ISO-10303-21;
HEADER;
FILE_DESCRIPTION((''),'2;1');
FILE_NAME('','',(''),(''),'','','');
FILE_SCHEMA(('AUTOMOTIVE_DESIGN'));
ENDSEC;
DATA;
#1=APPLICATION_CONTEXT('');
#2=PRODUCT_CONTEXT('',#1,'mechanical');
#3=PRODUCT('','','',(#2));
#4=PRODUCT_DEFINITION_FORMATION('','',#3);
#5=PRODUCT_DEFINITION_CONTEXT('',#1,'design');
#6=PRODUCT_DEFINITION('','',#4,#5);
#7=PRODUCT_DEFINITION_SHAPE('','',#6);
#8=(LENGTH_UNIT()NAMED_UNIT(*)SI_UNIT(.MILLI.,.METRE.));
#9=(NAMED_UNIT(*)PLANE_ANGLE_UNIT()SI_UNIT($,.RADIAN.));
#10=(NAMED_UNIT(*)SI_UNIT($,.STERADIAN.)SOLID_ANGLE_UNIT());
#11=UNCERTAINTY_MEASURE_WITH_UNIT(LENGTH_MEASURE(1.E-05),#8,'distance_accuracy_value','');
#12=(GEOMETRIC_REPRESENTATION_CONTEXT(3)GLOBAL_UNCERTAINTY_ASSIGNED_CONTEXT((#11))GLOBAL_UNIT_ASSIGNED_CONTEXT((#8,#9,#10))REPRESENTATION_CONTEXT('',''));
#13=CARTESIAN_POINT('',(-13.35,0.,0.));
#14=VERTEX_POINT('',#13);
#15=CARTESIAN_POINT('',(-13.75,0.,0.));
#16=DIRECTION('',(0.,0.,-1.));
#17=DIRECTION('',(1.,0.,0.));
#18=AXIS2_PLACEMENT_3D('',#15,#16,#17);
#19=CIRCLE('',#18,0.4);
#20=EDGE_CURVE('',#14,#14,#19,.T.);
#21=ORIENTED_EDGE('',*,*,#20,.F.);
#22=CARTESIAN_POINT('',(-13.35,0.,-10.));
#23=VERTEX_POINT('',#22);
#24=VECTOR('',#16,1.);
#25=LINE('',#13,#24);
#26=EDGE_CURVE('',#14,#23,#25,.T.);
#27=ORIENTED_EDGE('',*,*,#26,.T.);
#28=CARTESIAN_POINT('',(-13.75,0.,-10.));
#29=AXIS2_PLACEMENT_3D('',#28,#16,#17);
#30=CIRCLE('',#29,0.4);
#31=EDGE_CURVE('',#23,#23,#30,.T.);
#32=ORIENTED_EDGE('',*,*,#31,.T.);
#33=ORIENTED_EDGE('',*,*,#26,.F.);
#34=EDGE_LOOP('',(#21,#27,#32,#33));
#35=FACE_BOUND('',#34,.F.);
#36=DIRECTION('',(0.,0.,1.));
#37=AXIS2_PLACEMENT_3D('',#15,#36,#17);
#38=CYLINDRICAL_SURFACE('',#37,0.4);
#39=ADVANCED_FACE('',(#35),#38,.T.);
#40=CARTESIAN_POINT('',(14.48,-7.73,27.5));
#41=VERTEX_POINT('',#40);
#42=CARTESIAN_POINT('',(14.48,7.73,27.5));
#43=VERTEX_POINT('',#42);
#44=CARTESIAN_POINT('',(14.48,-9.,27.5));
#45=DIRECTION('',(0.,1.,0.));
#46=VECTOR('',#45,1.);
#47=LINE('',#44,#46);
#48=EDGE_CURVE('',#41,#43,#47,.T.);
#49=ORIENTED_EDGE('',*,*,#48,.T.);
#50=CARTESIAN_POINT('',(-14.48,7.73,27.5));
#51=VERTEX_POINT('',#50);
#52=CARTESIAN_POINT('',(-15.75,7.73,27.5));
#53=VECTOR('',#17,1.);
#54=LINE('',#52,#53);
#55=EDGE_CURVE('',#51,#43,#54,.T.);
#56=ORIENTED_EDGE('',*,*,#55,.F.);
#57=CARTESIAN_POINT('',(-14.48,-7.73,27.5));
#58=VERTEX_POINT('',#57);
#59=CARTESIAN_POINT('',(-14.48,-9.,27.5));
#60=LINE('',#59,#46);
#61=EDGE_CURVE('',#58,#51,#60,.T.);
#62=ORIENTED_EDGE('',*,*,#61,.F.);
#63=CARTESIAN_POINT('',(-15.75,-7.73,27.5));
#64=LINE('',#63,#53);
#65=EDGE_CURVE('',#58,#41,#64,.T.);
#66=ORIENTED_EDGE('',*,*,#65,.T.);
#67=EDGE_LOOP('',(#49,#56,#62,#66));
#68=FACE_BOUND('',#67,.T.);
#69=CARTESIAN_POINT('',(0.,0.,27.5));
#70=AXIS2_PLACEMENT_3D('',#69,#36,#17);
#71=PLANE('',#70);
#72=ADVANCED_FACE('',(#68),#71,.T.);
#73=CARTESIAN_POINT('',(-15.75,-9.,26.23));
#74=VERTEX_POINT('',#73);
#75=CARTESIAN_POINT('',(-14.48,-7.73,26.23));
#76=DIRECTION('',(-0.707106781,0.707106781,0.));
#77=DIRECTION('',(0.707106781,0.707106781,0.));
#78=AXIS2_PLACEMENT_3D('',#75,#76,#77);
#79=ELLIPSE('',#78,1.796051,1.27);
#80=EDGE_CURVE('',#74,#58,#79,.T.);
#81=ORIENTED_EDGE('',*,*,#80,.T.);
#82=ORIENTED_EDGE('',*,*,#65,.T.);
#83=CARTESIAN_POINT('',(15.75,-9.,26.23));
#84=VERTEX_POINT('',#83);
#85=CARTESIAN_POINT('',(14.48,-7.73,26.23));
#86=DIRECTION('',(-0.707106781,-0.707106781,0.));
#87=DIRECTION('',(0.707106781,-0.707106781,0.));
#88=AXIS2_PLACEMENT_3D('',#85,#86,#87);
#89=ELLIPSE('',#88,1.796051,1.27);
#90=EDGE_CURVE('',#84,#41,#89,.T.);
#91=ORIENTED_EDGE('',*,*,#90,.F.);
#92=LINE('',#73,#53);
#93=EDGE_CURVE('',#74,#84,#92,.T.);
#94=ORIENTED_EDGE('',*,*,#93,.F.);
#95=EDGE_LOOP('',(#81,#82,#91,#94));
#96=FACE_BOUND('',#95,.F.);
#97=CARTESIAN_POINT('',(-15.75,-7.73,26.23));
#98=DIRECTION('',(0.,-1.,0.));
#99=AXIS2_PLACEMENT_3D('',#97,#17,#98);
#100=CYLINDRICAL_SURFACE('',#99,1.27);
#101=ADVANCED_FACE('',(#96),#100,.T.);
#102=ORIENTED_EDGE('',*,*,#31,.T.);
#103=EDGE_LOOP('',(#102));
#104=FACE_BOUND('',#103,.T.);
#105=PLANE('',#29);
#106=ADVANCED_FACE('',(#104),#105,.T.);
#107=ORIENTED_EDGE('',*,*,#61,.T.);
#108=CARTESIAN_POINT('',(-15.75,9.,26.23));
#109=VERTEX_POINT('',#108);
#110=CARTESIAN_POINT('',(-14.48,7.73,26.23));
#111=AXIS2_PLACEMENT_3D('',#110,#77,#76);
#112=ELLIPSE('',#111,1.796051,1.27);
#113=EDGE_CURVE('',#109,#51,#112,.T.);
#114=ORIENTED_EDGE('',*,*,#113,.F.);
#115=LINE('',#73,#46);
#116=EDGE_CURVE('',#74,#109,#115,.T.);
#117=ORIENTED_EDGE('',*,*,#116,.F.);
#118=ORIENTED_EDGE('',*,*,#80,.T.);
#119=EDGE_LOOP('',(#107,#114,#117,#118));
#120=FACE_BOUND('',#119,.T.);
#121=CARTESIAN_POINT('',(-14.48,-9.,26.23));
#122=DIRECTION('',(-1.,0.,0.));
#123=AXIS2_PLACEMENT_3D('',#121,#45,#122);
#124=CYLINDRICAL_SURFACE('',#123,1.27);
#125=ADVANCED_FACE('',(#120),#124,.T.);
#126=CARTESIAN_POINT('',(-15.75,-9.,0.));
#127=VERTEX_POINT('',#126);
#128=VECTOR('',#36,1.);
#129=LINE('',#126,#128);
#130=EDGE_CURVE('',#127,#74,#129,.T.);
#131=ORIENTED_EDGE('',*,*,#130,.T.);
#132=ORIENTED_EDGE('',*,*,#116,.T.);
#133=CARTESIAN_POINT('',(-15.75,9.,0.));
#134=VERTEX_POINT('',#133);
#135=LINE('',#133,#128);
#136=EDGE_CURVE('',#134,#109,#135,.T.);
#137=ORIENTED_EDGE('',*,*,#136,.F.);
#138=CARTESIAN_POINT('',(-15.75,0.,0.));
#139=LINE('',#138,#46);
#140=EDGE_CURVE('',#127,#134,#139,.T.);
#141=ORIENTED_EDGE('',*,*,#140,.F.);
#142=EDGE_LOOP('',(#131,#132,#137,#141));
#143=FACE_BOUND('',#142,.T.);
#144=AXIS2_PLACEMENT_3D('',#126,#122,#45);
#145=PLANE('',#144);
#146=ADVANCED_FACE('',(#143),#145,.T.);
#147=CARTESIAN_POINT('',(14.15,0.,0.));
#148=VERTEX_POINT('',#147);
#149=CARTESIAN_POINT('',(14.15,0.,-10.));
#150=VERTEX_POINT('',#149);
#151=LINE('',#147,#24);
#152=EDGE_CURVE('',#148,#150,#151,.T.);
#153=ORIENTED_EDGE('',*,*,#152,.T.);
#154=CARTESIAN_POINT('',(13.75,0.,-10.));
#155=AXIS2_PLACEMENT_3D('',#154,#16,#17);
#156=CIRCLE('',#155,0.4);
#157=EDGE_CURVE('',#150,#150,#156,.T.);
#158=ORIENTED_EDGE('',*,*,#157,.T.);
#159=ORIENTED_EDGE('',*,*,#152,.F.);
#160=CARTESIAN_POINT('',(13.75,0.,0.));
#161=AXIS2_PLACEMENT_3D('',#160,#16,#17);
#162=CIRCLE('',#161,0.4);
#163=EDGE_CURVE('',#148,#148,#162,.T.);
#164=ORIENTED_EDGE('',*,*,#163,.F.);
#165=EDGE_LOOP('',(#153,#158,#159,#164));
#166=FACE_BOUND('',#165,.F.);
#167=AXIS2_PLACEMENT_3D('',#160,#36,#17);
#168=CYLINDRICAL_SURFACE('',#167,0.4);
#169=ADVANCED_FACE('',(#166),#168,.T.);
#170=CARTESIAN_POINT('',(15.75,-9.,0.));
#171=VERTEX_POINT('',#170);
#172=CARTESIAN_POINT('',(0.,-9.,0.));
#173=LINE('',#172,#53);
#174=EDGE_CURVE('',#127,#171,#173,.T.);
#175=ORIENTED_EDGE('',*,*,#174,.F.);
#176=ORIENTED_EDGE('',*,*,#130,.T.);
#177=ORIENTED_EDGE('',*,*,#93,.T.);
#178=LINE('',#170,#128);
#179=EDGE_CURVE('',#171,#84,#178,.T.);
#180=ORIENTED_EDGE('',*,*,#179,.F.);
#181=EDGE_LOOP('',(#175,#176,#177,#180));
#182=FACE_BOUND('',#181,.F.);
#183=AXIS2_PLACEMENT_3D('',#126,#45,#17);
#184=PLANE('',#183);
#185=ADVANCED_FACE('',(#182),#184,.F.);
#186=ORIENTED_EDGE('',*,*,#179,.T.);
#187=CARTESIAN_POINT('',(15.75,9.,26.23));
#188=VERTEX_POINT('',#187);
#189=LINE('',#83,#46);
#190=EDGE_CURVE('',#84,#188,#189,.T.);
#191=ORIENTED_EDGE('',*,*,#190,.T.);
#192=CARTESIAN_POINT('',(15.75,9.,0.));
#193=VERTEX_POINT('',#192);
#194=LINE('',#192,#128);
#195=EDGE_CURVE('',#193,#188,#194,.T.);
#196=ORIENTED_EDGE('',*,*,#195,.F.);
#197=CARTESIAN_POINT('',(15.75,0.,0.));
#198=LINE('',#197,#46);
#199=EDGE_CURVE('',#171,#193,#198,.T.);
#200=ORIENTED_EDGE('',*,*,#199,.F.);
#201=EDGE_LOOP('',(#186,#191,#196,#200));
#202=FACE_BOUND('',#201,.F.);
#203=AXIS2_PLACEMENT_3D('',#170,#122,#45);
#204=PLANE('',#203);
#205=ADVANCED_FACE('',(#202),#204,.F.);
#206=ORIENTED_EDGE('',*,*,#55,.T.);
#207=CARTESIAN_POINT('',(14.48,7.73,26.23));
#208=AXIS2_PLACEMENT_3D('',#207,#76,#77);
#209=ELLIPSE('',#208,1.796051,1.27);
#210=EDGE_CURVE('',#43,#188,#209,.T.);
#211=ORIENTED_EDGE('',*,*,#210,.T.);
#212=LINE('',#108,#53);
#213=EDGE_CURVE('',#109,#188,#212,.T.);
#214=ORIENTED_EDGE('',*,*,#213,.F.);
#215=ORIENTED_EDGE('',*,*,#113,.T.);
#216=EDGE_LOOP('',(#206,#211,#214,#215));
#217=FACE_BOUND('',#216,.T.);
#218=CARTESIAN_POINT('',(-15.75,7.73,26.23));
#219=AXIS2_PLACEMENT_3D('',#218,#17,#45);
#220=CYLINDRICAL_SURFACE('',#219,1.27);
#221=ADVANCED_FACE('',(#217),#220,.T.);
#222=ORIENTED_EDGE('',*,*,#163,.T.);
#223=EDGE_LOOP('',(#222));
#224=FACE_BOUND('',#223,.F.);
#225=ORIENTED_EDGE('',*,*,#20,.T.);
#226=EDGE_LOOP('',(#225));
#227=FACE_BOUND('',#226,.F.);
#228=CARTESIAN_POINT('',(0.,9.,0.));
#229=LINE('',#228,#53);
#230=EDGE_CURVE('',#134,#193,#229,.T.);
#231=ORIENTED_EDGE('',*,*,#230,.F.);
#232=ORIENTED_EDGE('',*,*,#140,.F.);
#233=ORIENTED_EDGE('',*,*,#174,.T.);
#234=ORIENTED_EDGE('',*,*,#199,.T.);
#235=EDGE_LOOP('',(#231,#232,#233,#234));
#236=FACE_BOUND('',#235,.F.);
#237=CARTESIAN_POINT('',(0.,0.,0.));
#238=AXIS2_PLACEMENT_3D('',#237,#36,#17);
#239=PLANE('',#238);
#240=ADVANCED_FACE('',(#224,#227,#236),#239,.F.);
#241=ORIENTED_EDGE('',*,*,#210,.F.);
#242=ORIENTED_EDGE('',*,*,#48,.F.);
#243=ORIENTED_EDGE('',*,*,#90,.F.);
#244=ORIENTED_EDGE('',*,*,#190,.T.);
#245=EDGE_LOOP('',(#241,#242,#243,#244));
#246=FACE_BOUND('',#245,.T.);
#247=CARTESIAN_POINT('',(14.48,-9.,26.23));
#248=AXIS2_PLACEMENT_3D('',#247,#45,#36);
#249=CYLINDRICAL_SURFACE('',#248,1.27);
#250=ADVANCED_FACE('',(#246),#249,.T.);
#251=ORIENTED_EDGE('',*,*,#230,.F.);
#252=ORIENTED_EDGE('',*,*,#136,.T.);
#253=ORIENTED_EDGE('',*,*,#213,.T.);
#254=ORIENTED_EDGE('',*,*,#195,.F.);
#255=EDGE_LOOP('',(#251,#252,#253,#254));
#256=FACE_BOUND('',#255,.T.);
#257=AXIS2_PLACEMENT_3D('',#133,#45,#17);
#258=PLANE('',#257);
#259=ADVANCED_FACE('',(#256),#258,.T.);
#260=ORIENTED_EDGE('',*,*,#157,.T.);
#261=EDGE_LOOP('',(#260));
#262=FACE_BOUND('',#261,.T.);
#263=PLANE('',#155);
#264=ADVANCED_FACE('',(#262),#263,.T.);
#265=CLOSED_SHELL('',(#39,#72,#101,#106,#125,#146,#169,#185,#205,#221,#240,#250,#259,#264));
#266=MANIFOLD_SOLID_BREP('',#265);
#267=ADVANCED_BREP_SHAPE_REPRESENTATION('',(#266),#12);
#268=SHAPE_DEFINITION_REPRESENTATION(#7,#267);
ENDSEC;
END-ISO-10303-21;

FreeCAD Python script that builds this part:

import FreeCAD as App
import Part
import Sketcher

V = App.Vector


def edges_at(feature, points):
    """Names of the edges that pass closest to the given points."""
    edges = feature.Shape.Edges
    near = lambda p: min(range(len(edges)), key=lambda i: edges[i].distToShape(Part.Vertex(*p))[0])
    return sorted({f"Edge{near(p) + 1}" for p in points})


def add_polygon(sketch, points):
    """Adds a closed chain of lines whose ends are joined by coincident constraints."""
    first, n = sketch.GeometryCount, len(points)
    for a, b in zip(points, points[1:] + points[:1]):
        sketch.addGeometry(Part.LineSegment(App.Vector(*a, 0), App.Vector(*b, 0)), False)
    for i in range(n):
        sketch.addConstraint(Sketcher.Constraint("Coincident", first + i, 2, first + (i + 1) % n, 1))

doc = App.newDocument("Part")
params = doc.addObject("Spreadsheet::Sheet", "Params")
for row, (alias, value) in enumerate([
    ("sketch1_height", "18 mm"),
    ("sketch1_width", "31.5 mm"),
    ("pad1_length", "27.5 mm"),
    ("sketch2_diameter", "0.8 mm"),
    ("pad2_length", "10 mm"),
    ("fillet_radius", "1.27 mm"),
], start=1):
    params.set(f"A{row}", alias)
    params.set(f"B{row}", "=" + value)
    params.setAlias(f"B{row}", alias)

body = doc.addObject("PartDesign::Body", "Body")

# Sketch on XY plane
sketch1 = doc.addObject("Sketcher::SketchObject", "Sketch")
body.addObject(sketch1)
sketch1.AttachmentSupport = (doc.XY_Plane, [""])
sketch1.MapMode = "FlatFace"
add_polygon(sketch1, [(-16, 9), (-16, -9), (16, -9), (16, 9)])  # lines 0-3
sketch1.addConstraint([
    Sketcher.Constraint("Vertical", 0),
    Sketcher.Constraint("Horizontal", 1),
    Sketcher.Constraint("Vertical", 2),
    Sketcher.Constraint("Horizontal", 3),
    Sketcher.Constraint("Symmetric", 0, 2, 2, 2, -1, 1),
    Sketcher.Constraint("DistanceY", 0, 2, 0, 1, 18.0),
    Sketcher.Constraint("DistanceX", 1, 1, 1, 2, 31.5),
])
sketch1.setExpression("Constraints[9]", "Params.sketch1_height")
sketch1.setExpression("Constraints[10]", "Params.sketch1_width")
pad1 = doc.addObject("PartDesign::Pad", "Pad")
body.addObject(pad1)
pad1.Profile = sketch1
pad1.setExpression("Length", "Params.pad1_length")

# Sketch on XY plane
sketch2 = doc.addObject("Sketcher::SketchObject", "Sketch001")
body.addObject(sketch2)
sketch2.AttachmentSupport = (doc.XY_Plane, [""])
sketch2.MapMode = "FlatFace"
sketch2.addGeometry([
    Part.Circle(V(13.75, 0, 0), V(0, 0, 1), 0.4),
    Part.Circle(V(-13.75, 0, 0), V(0, 0, 1), 0.4),
], False)
sketch2.addConstraint([
    Sketcher.Constraint("Equal", 0, 1),
    Sketcher.Constraint("Symmetric", 0, 3, 1, 3, -1, 1),
    Sketcher.Constraint("PointOnObject", 0, 3, -1),
    Sketcher.Constraint("Diameter", 0, 0.8),
    Sketcher.Constraint("DistanceX", 1, 3, 0, 3, 27.5),
])
sketch2.setExpression("Constraints[3]", "Params.sketch2_diameter")
pad2 = doc.addObject("PartDesign::Pad", "Pad001")
body.addObject(pad2)
pad2.Profile = sketch2
pad2.setExpression("Length", "Params.pad2_length")
pad2.Reversed = True
doc.recompute()

fillet = doc.addObject("PartDesign::Fillet", "Fillet")
body.addObject(fillet)
fillet.Base = (pad2, edges_at(pad2, [
    (-15.75, 0, 27.5),
    (0, -9, 27.5),
    (15.75, 0, 27.5),
    (0, 9, 27.5),
]))
fillet.setExpression("Radius", "Params.fillet_radius")

doc.recompute()
